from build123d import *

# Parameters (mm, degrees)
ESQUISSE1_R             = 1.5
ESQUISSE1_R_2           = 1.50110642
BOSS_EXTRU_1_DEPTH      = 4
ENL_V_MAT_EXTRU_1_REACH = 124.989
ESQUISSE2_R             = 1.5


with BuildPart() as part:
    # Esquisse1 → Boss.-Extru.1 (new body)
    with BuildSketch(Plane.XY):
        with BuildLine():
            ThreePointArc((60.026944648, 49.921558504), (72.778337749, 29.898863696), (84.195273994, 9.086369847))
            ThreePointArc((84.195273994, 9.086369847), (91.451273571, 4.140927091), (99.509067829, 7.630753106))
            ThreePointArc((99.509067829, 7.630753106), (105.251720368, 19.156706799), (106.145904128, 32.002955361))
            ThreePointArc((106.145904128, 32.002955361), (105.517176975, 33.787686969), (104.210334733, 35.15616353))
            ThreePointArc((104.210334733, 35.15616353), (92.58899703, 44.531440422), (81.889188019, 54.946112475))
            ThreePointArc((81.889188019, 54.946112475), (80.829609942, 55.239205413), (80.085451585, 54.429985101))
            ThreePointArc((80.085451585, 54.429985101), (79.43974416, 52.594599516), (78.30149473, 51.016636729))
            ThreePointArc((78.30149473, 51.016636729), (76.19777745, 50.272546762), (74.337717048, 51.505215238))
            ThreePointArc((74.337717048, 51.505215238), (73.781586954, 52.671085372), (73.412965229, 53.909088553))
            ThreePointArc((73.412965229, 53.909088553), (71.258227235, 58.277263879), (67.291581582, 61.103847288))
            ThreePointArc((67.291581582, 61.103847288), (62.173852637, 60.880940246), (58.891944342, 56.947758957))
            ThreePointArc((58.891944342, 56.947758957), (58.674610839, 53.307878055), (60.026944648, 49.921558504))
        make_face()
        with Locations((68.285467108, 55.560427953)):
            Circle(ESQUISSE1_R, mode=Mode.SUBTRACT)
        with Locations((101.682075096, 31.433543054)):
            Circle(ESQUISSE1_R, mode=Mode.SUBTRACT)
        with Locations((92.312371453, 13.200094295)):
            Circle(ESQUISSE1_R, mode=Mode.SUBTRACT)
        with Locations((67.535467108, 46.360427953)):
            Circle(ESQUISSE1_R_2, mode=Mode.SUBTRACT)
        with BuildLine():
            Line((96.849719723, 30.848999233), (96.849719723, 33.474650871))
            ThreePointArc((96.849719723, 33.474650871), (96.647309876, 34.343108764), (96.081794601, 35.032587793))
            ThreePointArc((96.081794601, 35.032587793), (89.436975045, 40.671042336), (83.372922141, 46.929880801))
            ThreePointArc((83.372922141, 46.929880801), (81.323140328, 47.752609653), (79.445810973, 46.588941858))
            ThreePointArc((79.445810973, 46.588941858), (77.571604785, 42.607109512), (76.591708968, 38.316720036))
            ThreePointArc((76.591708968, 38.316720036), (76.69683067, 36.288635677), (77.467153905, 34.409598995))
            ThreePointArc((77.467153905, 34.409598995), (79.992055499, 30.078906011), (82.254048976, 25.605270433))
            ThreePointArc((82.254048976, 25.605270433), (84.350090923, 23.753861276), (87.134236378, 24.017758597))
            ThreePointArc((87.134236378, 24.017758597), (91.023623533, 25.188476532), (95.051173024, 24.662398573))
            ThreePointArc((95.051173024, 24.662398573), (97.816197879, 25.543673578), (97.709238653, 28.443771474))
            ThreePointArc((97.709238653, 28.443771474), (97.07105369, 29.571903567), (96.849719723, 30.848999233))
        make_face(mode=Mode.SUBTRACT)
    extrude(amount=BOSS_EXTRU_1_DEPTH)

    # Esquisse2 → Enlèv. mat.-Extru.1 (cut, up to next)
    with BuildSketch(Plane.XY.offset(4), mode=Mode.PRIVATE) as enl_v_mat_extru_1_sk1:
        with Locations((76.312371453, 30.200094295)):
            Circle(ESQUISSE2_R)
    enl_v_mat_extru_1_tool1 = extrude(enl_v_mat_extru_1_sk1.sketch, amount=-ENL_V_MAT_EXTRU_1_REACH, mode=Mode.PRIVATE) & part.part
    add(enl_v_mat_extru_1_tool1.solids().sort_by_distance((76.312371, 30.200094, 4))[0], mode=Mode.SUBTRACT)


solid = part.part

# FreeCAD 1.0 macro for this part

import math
import FreeCAD as App
import Part
import Sketcher
from FreeCAD import Vector

doc = App.newDocument("Part")
params = doc.addObject("Spreadsheet::Sheet", "Params")
for row, (alias, value) in enumerate([
    ("sketch1_diameter", "3 mm"),
    ("sketch1_diameter2", "3 mm"),
    ("sketch1_diameter3", "3 mm"),
    ("sketch1_radius", "33 mm"),
    ("sketch1_radius2", "9.1 mm"),
    ("pad1_length", "4 mm"),
    ("sketch2_diameter", "3 mm"),
], start=1):
    params.set(f"A{row}", alias)
    params.set(f"B{row}", "=" + value)
    params.setAlias(f"B{row}", alias)

body = doc.addObject("PartDesign::Body", "Body")

sketch1 = body.newObject("Sketcher::SketchObject", "Sketch")
sketch1.AttachmentSupport = (doc.getObject("XY_Plane"), [""])
sketch1.MapMode = "FlatFace"
sketch1.addGeometry(Part.ArcOfCircle(Part.Circle(Vector(-239.950658, -155.189968, 0), Vector(0, 0, 1), 363.39689), math.radians(26.875776), math.radians(34.362608)), False)
sketch1.addGeometry(Part.ArcOfCircle(Part.Circle(Vector(92.312371, 13.200094, 0), Vector(0, 0, 1), 9.1), math.radians(-153.124224), math.radians(-37.735381)), False)
sketch1.addGeometry(Part.ArcOfCircle(Part.Circle(Vector(73.411158, 27.827265, 0), Vector(0, 0, 1), 33), math.radians(-37.735381), math.radians(7.26947)), False)
sketch1.addGeometry(Part.ArcOfCircle(Part.Circle(Vector(101.682075, 31.433543, 0), Vector(0, 0, 1), 4.5), math.radians(7.26947), math.radians(55.817172)), False)
sketch1.addGeometry(Part.ArcOfCircle(Part.Circle(Vector(199.067313, 164.628674, 0), Vector(0, 0, 1), 160.502266), math.radians(-136.892386), math.radians(-126.228065)), False)
sketch1.addGeometry(Part.ArcOfCircle(Part.Circle(Vector(81.119602, 54.225755, 0), Vector(0, 0, 1), 1.054124), math.radians(43.107614), math.radians(168.82864)), False)
sketch1.addGeometry(Part.ArcOfCircle(Part.Circle(Vector(73.402927, 55.74969, 0), Vector(0, 0, 1), 6.81159), math.radians(-44.015495), math.radians(-11.17136)), False)
sketch1.addGeometry(Part.ArcOfCircle(Part.Circle(Vector(76.503615, 52.753769, 0), Vector(0, 0, 1), 2.5), math.radians(-150.038267), math.radians(-44.015495)), False)
sketch1.addGeometry(Part.ArcOfCircle(Part.Circle(Vector(81.532929, 55.652968, 0), Vector(0, 0, 1), 8.305115), math.radians(-167.879022), math.radians(-150.038267)), False)
sketch1.addGeometry(Part.ArcOfCircle(Part.Circle(Vector(63.662978, 51.815138, 0), Vector(0, 0, 1), 9.972306), math.radians(12.120978), math.radians(68.662061)), False)
sketch1.addGeometry(Part.ArcOfCircle(Part.Circle(Vector(64.985035, 55.199417, 0), Vector(0, 0, 1), 6.338963), math.radians(68.662061), math.radians(163.989778)), False)
sketch1.addGeometry(Part.ArcOfCircle(Part.Circle(Vector(66.92976, 54.641401, 0), Vector(0, 0, 1), 8.362163), math.radians(163.989778), math.radians(214.362608)), False)
sketch1.addGeometry(Part.Circle(Vector(92.312371, 13.200094, 0), Vector(0, 0, 1), 1.5), False)
sketch1.addGeometry(Part.Circle(Vector(101.682075, 31.433543, 0), Vector(0, 0, 1), 1.5), False)
sketch1.addGeometry(Part.Circle(Vector(67.535467, 46.360428, 0), Vector(0, 0, 1), 1.501106), False)
sketch1.addGeometry(Part.Circle(Vector(68.285467, 55.560428, 0), Vector(0, 0, 1), 1.5), False)
sketch1.addGeometry(Part.LineSegment(Vector(96.84972, 33.474651, 0), Vector(96.84972, 30.848999, 0)), False)
sketch1.addGeometry(Part.ArcOfCircle(Part.Circle(Vector(100.644804, 30.848999, 0), Vector(0, 0, 1), 3.795084), math.radians(-180), math.radians(-140.670846)), False)
sketch1.addGeometry(Part.ArcOfCircle(Part.Circle(Vector(95.853524, 26.923309, 0), Vector(0, 0, 1), 2.399059), math.radians(-109.538733), math.radians(39.329154)), False)
sketch1.addGeometry(Part.ArcOfCircle(Part.Circle(Vector(91.810107, 15.529536, 0), Vector(0, 0, 1), 9.690907), math.radians(70.461267), math.radians(118.848861)), False)
sketch1.addGeometry(Part.ArcOfCircle(Part.Circle(Vector(85.437747, 27.097437, 0), Vector(0, 0, 1), 3.516034), math.radians(-154.887996), math.radians(-61.151139)), False)
sketch1.addGeometry(Part.ArcOfCircle(Part.Circle(Vector(6.215974, -10.032995, 0), Vector(0, 0, 1), 83.975441), math.radians(25.112004), math.radians(31.953662)), False)
sketch1.addGeometry(Part.ArcOfCircle(Part.Circle(Vector(82.600338, 37.611399, 0), Vector(0, 0, 1), 6.049884), math.radians(173.304989), math.radians(211.953662)), False)
sketch1.addGeometry(Part.ArcOfCircle(Part.Circle(Vector(96.924351, 35.929978, 0), Vector(0, 0, 1), 20.472246), math.radians(148.623847), math.radians(173.304989)), False)
sketch1.addGeometry(Part.ArcOfCircle(Part.Circle(Vector(81.534763, 45.315033, 0), Vector(0, 0, 1), 2.446745), math.radians(41.299736), math.radians(148.623847)), False)
sketch1.addGeometry(Part.ArcOfCircle(Part.Circle(Vector(150.512654, 105.913028, 0), Vector(0, 0, 1), 89.368648), math.radians(-138.700264), math.radians(-127.521558)), False)
sketch1.addGeometry(Part.ArcOfCircle(Part.Circle(Vector(94.885416, 33.474651, 0), Vector(0, 0, 1), 1.964304), math.radians(0), math.radians(52.478442)), False)
sketch1.addConstraint(Sketcher.Constraint("Coincident", 0, 1, 1, 1))
sketch1.addConstraint(Sketcher.Constraint("Coincident", 1, 2, 2, 1))
sketch1.addConstraint(Sketcher.Constraint("Coincident", 2, 2, 3, 1))
sketch1.addConstraint(Sketcher.Constraint("Coincident", 3, 2, 4, 2))
sketch1.addConstraint(Sketcher.Constraint("Coincident", 4, 1, 5, 1))
sketch1.addConstraint(Sketcher.Constraint("Coincident", 5, 2, 6, 2))
sketch1.addConstraint(Sketcher.Constraint("Coincident", 6, 1, 7, 2))
sketch1.addConstraint(Sketcher.Constraint("Coincident", 7, 1, 8, 2))
sketch1.addConstraint(Sketcher.Constraint("Coincident", 8, 1, 9, 1))
sketch1.addConstraint(Sketcher.Constraint("Coincident", 9, 2, 10, 1))
sketch1.addConstraint(Sketcher.Constraint("Coincident", 10, 2, 11, 1))
sketch1.addConstraint(Sketcher.Constraint("Coincident", 11, 2, 0, 2))
sketch1.addConstraint(Sketcher.Constraint("Coincident", 16, 2, 17, 1))
sketch1.addConstraint(Sketcher.Constraint("Coincident", 17, 2, 18, 2))
sketch1.addConstraint(Sketcher.Constraint("Coincident", 18, 1, 19, 1))
sketch1.addConstraint(Sketcher.Constraint("Coincident", 19, 2, 20, 2))
sketch1.addConstraint(Sketcher.Constraint("Coincident", 20, 1, 21, 1))
sketch1.addConstraint(Sketcher.Constraint("Coincident", 21, 2, 22, 2))
sketch1.addConstraint(Sketcher.Constraint("Coincident", 22, 1, 23, 2))
sketch1.addConstraint(Sketcher.Constraint("Coincident", 23, 1, 24, 2))
sketch1.addConstraint(Sketcher.Constraint("Coincident", 24, 1, 25, 1))
sketch1.addConstraint(Sketcher.Constraint("Coincident", 25, 2, 26, 2))
sketch1.addConstraint(Sketcher.Constraint("Coincident", 26, 1, 16, 1))
sketch1.addConstraint(Sketcher.Constraint("Vertical", 16))
sketch1.addConstraint(Sketcher.Constraint("Coincident", 12, 3, 1, 3))
sketch1.addConstraint(Sketcher.Constraint("Coincident", 13, 3, 3, 3))
sketch1.addConstraint(Sketcher.Constraint("Diameter", 12, 3.0))
sketch1.addConstraint(Sketcher.Constraint("Diameter", 13, 3.0))
sketch1.addConstraint(Sketcher.Constraint("Diameter", 15, 3.0))
sketch1.addConstraint(Sketcher.Constraint("Radius", 2, 33.0))
sketch1.addConstraint(Sketcher.Constraint("Radius", 1, 9.1))
sketch1.addConstraint(Sketcher.Constraint("Radius", 3, 4.5))
sketch1.addConstraint(Sketcher.Constraint("Radius", 7, 2.5))
sketch1.addConstraint(Sketcher.Constraint("Radius", 0, 363.39689))
sketch1.addConstraint(Sketcher.Constraint("Radius", 6, 6.81159))
sketch1.addConstraint(Sketcher.Constraint("Radius", 18, 2.399059))
sketch1.addConstraint(Sketcher.Constraint("Radius", 21, 83.975441))
sketch1.addConstraint(Sketcher.Constraint("Radius", 25, 89.368648))
sketch1.addConstraint(Sketcher.Constraint("Diameter", 14, 3.002213))
sketch1.addConstraint(Sketcher.Constraint("DistanceY", -1, 1, 17, 3, 30.848999))
sketch1.addConstraint(Sketcher.Constraint("DistanceY", -1, 1, 16, 2, 30.848999))
sketch1.addConstraint(Sketcher.Constraint("Radius", 4, 160.502266))
sketch1.addConstraint(Sketcher.Constraint("Radius", 5, 1.054124))
sketch1.addConstraint(Sketcher.Constraint("Radius", 8, 8.305115))
sketch1.addConstraint(Sketcher.Constraint("Radius", 9, 9.972306))
sketch1.addConstraint(Sketcher.Constraint("Radius", 10, 6.338963))
sketch1.addConstraint(Sketcher.Constraint("Radius", 11, 8.362163))
sketch1.addConstraint(Sketcher.Constraint("Radius", 17, 3.795084))
sketch1.addConstraint(Sketcher.Constraint("Radius", 19, 9.690907))
sketch1.addConstraint(Sketcher.Constraint("Radius", 20, 3.516034))
sketch1.addConstraint(Sketcher.Constraint("Radius", 22, 6.049884))
sketch1.addConstraint(Sketcher.Constraint("Radius", 23, 20.472246))
sketch1.addConstraint(Sketcher.Constraint("Radius", 24, 2.446745))
sketch1.addConstraint(Sketcher.Constraint("Radius", 26, 1.964304))
sketch1.addConstraint(Sketcher.Constraint("DistanceX", 10, 2, 11, 2, 1.135))
sketch1.addConstraint(Sketcher.Constraint("DistanceY", 16, 2, 16, 1, 2.625652))
sketch1.addConstraint(Sketcher.Constraint("DistanceY", -1, 1, 11, 3, 54.641401))
sketch1.addConstraint(Sketcher.Constraint("DistanceY", -1, 1, 22, 3, 37.611399))
sketch1.addConstraint(Sketcher.Constraint("DistanceY", -1, 1, 18, 1, 24.662399))
sketch1.addConstraint(Sketcher.Constraint("DistanceY", -1, 1, 21, 2, 34.409599))
sketch1.addConstraint(Sketcher.Constraint("DistanceY", 7, 3, 8, 3, 2.899199))
sketch1.addConstraint(Sketcher.Constraint("DistanceY", 19, 3, 20, 3, 11.567901))
sketch1.addConstraint(Sketcher.Constraint("DistanceX", 17, 3, 2, 2, 5.5011))
sketch1.addConstraint(Sketcher.Constraint("DistanceY", 8, 1, 6, 3, 1.840601))
sketch1.addConstraint(Sketcher.Constraint("DistanceX", 15, 3, 8, 1, 5.127498))
sketch1.addConstraint(Sketcher.Constraint("DistanceY", 11, 2, 10, 2, 7.0262))
sketch1.addConstraint(Sketcher.Constraint("DistanceX", 20, 1, 20, 3, 3.183698))
sketch1.addConstraint(Sketcher.Constraint("DistanceX", -1, 1, 1, 3, 92.312371))
sketch1.addConstraint(Sketcher.Constraint("DistanceY", -1, 1, 6, 3, 55.74969))
sketch1.addConstraint(Sketcher.Constraint("DistanceY", -1, 1, 7, 3, 52.753769))
sketch1.addConstraint(Sketcher.Constraint("DistanceX", -1, 1, 8, 3, 81.532929))
sketch1.addConstraint(Sketcher.Constraint("DistanceY", -1, 1, 9, 3, 51.815138))
sketch1.addConstraint(Sketcher.Constraint("DistanceX", -1, 1, 11, 3, 66.92976))
sketch1.addConstraint(Sketcher.Constraint("DistanceY", -1, 1, 18, 3, 26.923309))
sketch1.addConstraint(Sketcher.Constraint("DistanceX", -1, 1, 23, 3, 96.924351))
sketch1.addConstraint(Sketcher.Constraint("DistanceY", -1, 1, 23, 3, 35.929978))
sketch1.addConstraint(Sketcher.Constraint("DistanceY", -1, 1, 26, 3, 33.474651))
sketch1.addConstraint(Sketcher.Constraint("DistanceY", -1, 1, 0, 1, 9.08637))
sketch1.addConstraint(Sketcher.Constraint("DistanceX", -1, 1, 4, 1, 81.889188))
sketch1.addConstraint(Sketcher.Constraint("DistanceX", -1, 1, 5, 2, 80.085452))
sketch1.addConstraint(Sketcher.Constraint("DistanceX", -1, 1, 9, 2, 67.291582))
sketch1.addConstraint(Sketcher.Constraint("DistanceX", -1, 1, 16, 2, 96.84972))
sketch1.addConstraint(Sketcher.Constraint("DistanceX", -1, 1, 17, 2, 97.709239))
sketch1.addConstraint(Sketcher.Constraint("DistanceY", -1, 1, 19, 2, 24.017759))
sketch1.addConstraint(Sketcher.Constraint("DistanceX", -1, 1, 20, 1, 82.254049))
sketch1.addConstraint(Sketcher.Constraint("DistanceX", -1, 1, 22, 1, 76.591709))
sketch1.addConstraint(Sketcher.Constraint("DistanceX", -1, 1, 23, 1, 79.445811))
sketch1.addConstraint(Sketcher.Constraint("DistanceY", -1, 1, 24, 1, 46.929881))
sketch1.addConstraint(Sketcher.Constraint("DistanceX", 0, 3, 1, 3, 332.263029))
sketch1.addConstraint(Sketcher.Constraint("DistanceY", 1, 3, 2, 3, 14.627171))
sketch1.addConstraint(Sketcher.Constraint("DistanceY", 1, 3, 3, 3, 18.233449))
sketch1.addConstraint(Sketcher.Constraint("DistanceX", 3, 3, 4, 3, 97.385238))
sketch1.addConstraint(Sketcher.Constraint("DistanceY", 3, 3, 4, 3, 133.195131))
sketch1.addConstraint(Sketcher.Constraint("DistanceX", 9, 3, 14, 3, 3.872489))
sketch1.addConstraint(Sketcher.Constraint("DistanceY", 14, 3, 9, 3, 5.45471))
sketch1.addConstraint(Sketcher.Constraint("DistanceY", 10, 3, 15, 3, 0.361011))
sketch1.addConstraint(Sketcher.Constraint("DistanceX", 5, 3, 24, 3, 0.415161))
sketch1.addConstraint(Sketcher.Constraint("DistanceY", 1, 2, 1, 3, 5.569341))
sketch1.addConstraint(Sketcher.Constraint("DistanceX", 7, 3, 6, 1, 1.79788))
sketch1.addConstraint(Sketcher.Constraint("DistanceY", 6, 1, 7, 1, 0.488579))
sketch1.addConstraint(Sketcher.Constraint("DistanceY", 25, 2, 23, 3, 0.897391))
sketch1.setExpression("Constraints[26]", "Params.sketch1_diameter")
sketch1.setExpression("Constraints[27]", "Params.sketch1_diameter2")
sketch1.setExpression("Constraints[28]", "Params.sketch1_diameter3")
sketch1.setExpression("Constraints[29]", "Params.sketch1_radius")
sketch1.setExpression("Constraints[30]", "Params.sketch1_radius2")
pad1 = body.newObject("PartDesign::Pad", "Pad")
pad1.Profile = sketch1
pad1.setExpression("Length", "Params.pad1_length")

sketch2 = body.newObject("Sketcher::SketchObject", "Sketch001")
sketch2.AttachmentSupport = (doc.getObject("XY_Plane"), [""])
sketch2.MapMode = "FlatFace"
sketch2.AttachmentOffset = App.Placement(Vector(0, 0, 4), App.Rotation())
sketch2.addGeometry(Part.Circle(Vector(76.3, 30.2, 0), Vector(0, 0, 1), 1.5), False)
sketch2.addConstraint(Sketcher.Constraint("Diameter", 0, 3.0))
sketch2.addConstraint(Sketcher.Constraint("DistanceX", -1, 1, 0, 3, 76.312371))
sketch2.addConstraint(Sketcher.Constraint("DistanceY", -1, 1, 0, 3, 30.200094))
sketch2.setExpression("Constraints[0]", "Params.sketch2_diameter")
pocket1 = body.newObject("PartDesign::Pocket", "Pocket")
pocket1.Profile = sketch2
pocket1.Type = "UpToFirst"

doc.recompute()
